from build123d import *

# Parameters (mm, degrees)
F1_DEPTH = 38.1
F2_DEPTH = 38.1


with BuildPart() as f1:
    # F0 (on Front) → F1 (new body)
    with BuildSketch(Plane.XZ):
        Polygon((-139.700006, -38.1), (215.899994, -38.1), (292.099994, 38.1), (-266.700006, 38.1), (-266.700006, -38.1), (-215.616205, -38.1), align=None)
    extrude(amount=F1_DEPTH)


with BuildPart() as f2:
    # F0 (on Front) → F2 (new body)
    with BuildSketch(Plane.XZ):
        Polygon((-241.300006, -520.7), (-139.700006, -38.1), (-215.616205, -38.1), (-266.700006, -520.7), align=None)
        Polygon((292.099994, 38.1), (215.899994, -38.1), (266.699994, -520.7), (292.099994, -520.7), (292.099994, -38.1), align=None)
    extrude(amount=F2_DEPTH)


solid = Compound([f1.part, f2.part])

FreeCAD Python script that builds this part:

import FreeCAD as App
import Part
import Sketcher
Q = App.Units.Quantity

doc = App.newDocument("Part")
body = doc.addObject("PartDesign::Body", "Body")

# Sketch on XZ plane
sketch1 = body.newObject("Sketcher::SketchObject", "Sketch")
sketch1.AttachmentSupport = (doc.getObject("XZ_Plane"), [""])
sketch1.MapMode = "FlatFace"
sketch1.addGeometry([
    Part.LineSegment(App.Vector(216, -38, 0), App.Vector(292, 38, 0)),
    Part.LineSegment(App.Vector(292, 38, 0), App.Vector(-267, 38, 0)),
    Part.LineSegment(App.Vector(-267, 38, 0), App.Vector(-267, -38, 0)),
    Part.LineSegment(App.Vector(-267, -38, 0), App.Vector(216, -38, 0)),
], False)
sketch1.addConstraint([
    Sketcher.Constraint("Coincident", 0, 2, 1, 1),
    Sketcher.Constraint("Coincident", 1, 2, 2, 1),
    Sketcher.Constraint("Coincident", 2, 2, 3, 1),
    Sketcher.Constraint("Coincident", 3, 2, 0, 1),
    Sketcher.Constraint("Horizontal", 1),
    Sketcher.Constraint("Vertical", 2),
    Sketcher.Constraint("Horizontal", 3),
    Sketcher.Constraint("DistanceX", 1, 2, 1, 1, Q("22 in")),
    Sketcher.Constraint("DistanceX", 3, 1, 3, 2, Q("19 in")),
    Sketcher.Constraint("DistanceY", 2, 2, 2, 1, Q("3 in")),
    Sketcher.Constraint("DistanceY", -1, 1, 0, 2, Q("1.5 in")),
    Sketcher.Constraint("DistanceX", -1, 1, 0, 2, 292.099994),
])
pad1 = body.newObject("PartDesign::Pad", "Pad")
pad1.Profile = sketch1
pad1.Length = Q("1.5 in")
body2 = doc.addObject("PartDesign::Body", "Body001")
body2.AllowCompound = True

# Sketch on XZ plane
sketch2 = body2.newObject("Sketcher::SketchObject", "Sketch001")
sketch2.AttachmentSupport = (doc.getObject("XZ_Plane001"), [""])
sketch2.MapMode = "FlatFace"
sketch2.addGeometry([
    Part.LineSegment(App.Vector(-241, -521, 0), App.Vector(-140, -38, 0)),  # 0
    Part.LineSegment(App.Vector(-140, -38, 0), App.Vector(-216, -38, 0)),  # 1
    Part.LineSegment(App.Vector(-216, -38, 0), App.Vector(-267, -521, 0)),  # 2
    Part.LineSegment(App.Vector(-267, -521, 0), App.Vector(-241, -521, 0)),  # 3
    Part.LineSegment(App.Vector(292, 38, 0), App.Vector(216, -38, 0)),  # 4
    Part.LineSegment(App.Vector(216, -38, 0), App.Vector(267, -521, 0)),  # 5
    Part.LineSegment(App.Vector(267, -521, 0), App.Vector(292, -521, 0)),  # 6
    Part.LineSegment(App.Vector(292, -521, 0), App.Vector(292, 38, 0)),  # 7
], False)
sketch2.addConstraint([
    Sketcher.Constraint("Coincident", 0, 2, 1, 1),
    Sketcher.Constraint("Coincident", 1, 2, 2, 1),
    Sketcher.Constraint("Coincident", 2, 2, 3, 1),
    Sketcher.Constraint("Coincident", 3, 2, 0, 1),
    Sketcher.Constraint("Coincident", 4, 2, 5, 1),
    Sketcher.Constraint("Coincident", 5, 2, 6, 1),
    Sketcher.Constraint("Coincident", 6, 2, 7, 1),
    Sketcher.Constraint("Coincident", 7, 2, 4, 1),
    Sketcher.Constraint("Horizontal", 1),
    Sketcher.Constraint("Horizontal", 3),
    Sketcher.Constraint("Horizontal", 6),
    Sketcher.Constraint("Vertical", 7),
    Sketcher.Constraint("Horizontal", 1, 2, 4, 2),
    Sketcher.Constraint("Horizontal", 3, 2, 5, 2),
    Sketcher.Constraint("Equal", 3, 6),
    Sketcher.Constraint("DistanceX", 3, 1, 3, 2, Q("1 in")),
    Sketcher.Constraint("DistanceY", 7, 1, 7, 2, Q("22 in")),
    Sketcher.Constraint("Angle", 4, Q("-135 deg")),
    Sketcher.Constraint("DistanceY", 2, 2, 1, 2, Q("19 in")),
    Sketcher.Constraint("DistanceX", 2, 2, 0, 2, Q("5 in")),
    Sketcher.Constraint("DistanceX", 0, 2, 4, 2, Q("14 in")),
    Sketcher.Constraint("DistanceY", 0, 2, -1, 1, Q("1.5 in")),
    Sketcher.Constraint("DistanceX", 1, 2, 1, 1, 75.916199),
    Sketcher.Constraint("DistanceX", 0, 2, -1, 1, 139.700006),
])
pad2 = body2.newObject("PartDesign::Pad", "Pad001")
pad2.Profile = sketch2
pad2.Length = Q("1.5 in")

doc.recompute()
